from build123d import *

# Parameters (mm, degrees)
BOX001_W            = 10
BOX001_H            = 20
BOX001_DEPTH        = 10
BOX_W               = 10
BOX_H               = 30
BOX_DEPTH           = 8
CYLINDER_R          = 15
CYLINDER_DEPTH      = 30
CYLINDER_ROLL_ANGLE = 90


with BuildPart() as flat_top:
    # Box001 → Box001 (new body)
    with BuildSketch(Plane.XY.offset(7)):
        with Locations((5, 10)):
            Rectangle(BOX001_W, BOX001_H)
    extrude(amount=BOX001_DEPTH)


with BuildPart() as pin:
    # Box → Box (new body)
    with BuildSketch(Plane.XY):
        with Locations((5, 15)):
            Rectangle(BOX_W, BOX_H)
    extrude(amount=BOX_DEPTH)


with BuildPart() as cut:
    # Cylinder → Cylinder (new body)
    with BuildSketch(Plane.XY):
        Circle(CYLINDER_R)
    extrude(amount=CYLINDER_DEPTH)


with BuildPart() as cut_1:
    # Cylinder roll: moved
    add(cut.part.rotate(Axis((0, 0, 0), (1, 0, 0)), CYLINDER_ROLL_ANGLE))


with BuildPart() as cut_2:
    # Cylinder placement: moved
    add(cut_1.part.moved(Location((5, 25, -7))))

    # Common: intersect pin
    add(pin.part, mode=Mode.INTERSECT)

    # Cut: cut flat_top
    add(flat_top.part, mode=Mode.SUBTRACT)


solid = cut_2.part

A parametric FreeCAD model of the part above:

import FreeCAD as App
import Part
import Sketcher
from FreeCAD import Vector

doc = App.newDocument("Part")
params = doc.addObject("Spreadsheet::Sheet", "Params")
for row, (alias, value) in enumerate([
    ("sketch1_width", "10 mm"),
    ("sketch1_height", "20 mm"),
    ("pad1_length", "10 mm"),
    ("sketch2_width", "10 mm"),
    ("sketch2_height", "30 mm"),
    ("pad2_length", "8 mm"),
    ("sketch3_diameter", "30 mm"),
    ("pad3_length", "30 mm"),
], start=1):
    params.set(f"A{row}", alias)
    params.set(f"B{row}", "=" + value)
    params.setAlias(f"B{row}", alias)

body = doc.addObject("PartDesign::Body", "Body")

sketch1 = body.newObject("Sketcher::SketchObject", "Sketch")
sketch1.AttachmentSupport = (doc.getObject("XY_Plane"), [""])
sketch1.MapMode = "FlatFace"
sketch1.AttachmentOffset = App.Placement(Vector(0, 0, 7), App.Rotation())
sketch1.addGeometry(Part.LineSegment(Vector(0, 20, 0), Vector(0, 0, 0)), False)
sketch1.addGeometry(Part.LineSegment(Vector(0, 0, 0), Vector(10, 0, 0)), False)
sketch1.addGeometry(Part.LineSegment(Vector(10, 0, 0), Vector(10, 20, 0)), False)
sketch1.addGeometry(Part.LineSegment(Vector(10, 20, 0), Vector(0, 20, 0)), False)
sketch1.addConstraint(Sketcher.Constraint("Coincident", 0, 2, 1, 1))
sketch1.addConstraint(Sketcher.Constraint("Coincident", 1, 2, 2, 1))
sketch1.addConstraint(Sketcher.Constraint("Coincident", 2, 2, 3, 1))
sketch1.addConstraint(Sketcher.Constraint("Coincident", 3, 2, 0, 1))
sketch1.addConstraint(Sketcher.Constraint("Vertical", 0))
sketch1.addConstraint(Sketcher.Constraint("Horizontal", 1))
sketch1.addConstraint(Sketcher.Constraint("Vertical", 2))
sketch1.addConstraint(Sketcher.Constraint("Horizontal", 3))
sketch1.addConstraint(Sketcher.Constraint("Coincident", 0, 2, -1, 1))
sketch1.addConstraint(Sketcher.Constraint("DistanceX", 1, 1, 1, 2, 10.0))
sketch1.addConstraint(Sketcher.Constraint("DistanceY", 0, 2, 0, 1, 20.0))
sketch1.setExpression("Constraints[9]", "Params.sketch1_width")
sketch1.setExpression("Constraints[10]", "Params.sketch1_height")
pad1 = body.newObject("PartDesign::Pad", "Pad")
pad1.Profile = sketch1
pad1.setExpression("Length", "Params.pad1_length")
body2 = doc.addObject("PartDesign::Body", "Body001")

sketch2 = body2.newObject("Sketcher::SketchObject", "Sketch001")
sketch2.AttachmentSupport = (doc.getObject("XY_Plane001"), [""])
sketch2.MapMode = "FlatFace"
sketch2.addGeometry(Part.LineSegment(Vector(0, 30, 0), Vector(0, 0, 0)), False)
sketch2.addGeometry(Part.LineSegment(Vector(0, 0, 0), Vector(10, 0, 0)), False)
sketch2.addGeometry(Part.LineSegment(Vector(10, 0, 0), Vector(10, 30, 0)), False)
sketch2.addGeometry(Part.LineSegment(Vector(10, 30, 0), Vector(0, 30, 0)), False)
sketch2.addConstraint(Sketcher.Constraint("Coincident", 0, 2, 1, 1))
sketch2.addConstraint(Sketcher.Constraint("Coincident", 1, 2, 2, 1))
sketch2.addConstraint(Sketcher.Constraint("Coincident", 2, 2, 3, 1))
sketch2.addConstraint(Sketcher.Constraint("Coincident", 3, 2, 0, 1))
sketch2.addConstraint(Sketcher.Constraint("Vertical", 0))
sketch2.addConstraint(Sketcher.Constraint("Horizontal", 1))
sketch2.addConstraint(Sketcher.Constraint("Vertical", 2))
sketch2.addConstraint(Sketcher.Constraint("Horizontal", 3))
sketch2.addConstraint(Sketcher.Constraint("Coincident", 0, 2, -1, 1))
sketch2.addConstraint(Sketcher.Constraint("DistanceX", 1, 1, 1, 2, 10.0))
sketch2.addConstraint(Sketcher.Constraint("DistanceY", 0, 2, 0, 1, 30.0))
sketch2.setExpression("Constraints[9]", "Params.sketch2_width")
sketch2.setExpression("Constraints[10]", "Params.sketch2_height")
pad2 = body2.newObject("PartDesign::Pad", "Pad001")
pad2.Profile = sketch2
pad2.setExpression("Length", "Params.pad2_length")
body3 = doc.addObject("PartDesign::Body", "Body002")

sketch3 = body3.newObject("Sketcher::SketchObject", "Sketch002")
sketch3.AttachmentSupport = (doc.getObject("XY_Plane002"), [""])
sketch3.MapMode = "FlatFace"
sketch3.addGeometry(Part.Circle(Vector(0, 0, 0), Vector(0, 0, 1), 15), False)
sketch3.addConstraint(Sketcher.Constraint("Coincident", 0, 3, -1, 1))
sketch3.addConstraint(Sketcher.Constraint("Diameter", 0, 30.0))
sketch3.setExpression("Constraints[1]", "Params.sketch3_diameter")
pad3 = body3.newObject("PartDesign::Pad", "Pad002")
pad3.Profile = sketch3
pad3.setExpression("Length", "Params.pad3_length")
body4 = doc.addObject("PartDesign::Body", "Body003")
doc.recompute()

body3.Placement = App.Placement(Vector(0, 0, 0), App.Rotation(Vector(1, 0, 0), 90))
boolean = body4.newObject("PartDesign::Boolean", "Boolean")
boolean.Type = "Fuse"
boolean.addObjects([body3])
body5 = doc.addObject("PartDesign::Body", "Body004")
doc.recompute()

body4.Placement = App.Placement(Vector(5, 25, -7), App.Rotation(Vector(0, 0, 1), 0))
boolean2 = body5.newObject("PartDesign::Boolean", "Boolean001")
boolean2.Type = "Fuse"
boolean2.addObjects([body4])
doc.recompute()

boolean3 = body5.newObject("PartDesign::Boolean", "Boolean002")
boolean3.Type = "Common"
boolean3.addObjects([body2])
doc.recompute()

boolean4 = body5.newObject("PartDesign::Boolean", "Boolean003")
boolean4.Type = "Cut"
boolean4.addObjects([body])

doc.recompute()
